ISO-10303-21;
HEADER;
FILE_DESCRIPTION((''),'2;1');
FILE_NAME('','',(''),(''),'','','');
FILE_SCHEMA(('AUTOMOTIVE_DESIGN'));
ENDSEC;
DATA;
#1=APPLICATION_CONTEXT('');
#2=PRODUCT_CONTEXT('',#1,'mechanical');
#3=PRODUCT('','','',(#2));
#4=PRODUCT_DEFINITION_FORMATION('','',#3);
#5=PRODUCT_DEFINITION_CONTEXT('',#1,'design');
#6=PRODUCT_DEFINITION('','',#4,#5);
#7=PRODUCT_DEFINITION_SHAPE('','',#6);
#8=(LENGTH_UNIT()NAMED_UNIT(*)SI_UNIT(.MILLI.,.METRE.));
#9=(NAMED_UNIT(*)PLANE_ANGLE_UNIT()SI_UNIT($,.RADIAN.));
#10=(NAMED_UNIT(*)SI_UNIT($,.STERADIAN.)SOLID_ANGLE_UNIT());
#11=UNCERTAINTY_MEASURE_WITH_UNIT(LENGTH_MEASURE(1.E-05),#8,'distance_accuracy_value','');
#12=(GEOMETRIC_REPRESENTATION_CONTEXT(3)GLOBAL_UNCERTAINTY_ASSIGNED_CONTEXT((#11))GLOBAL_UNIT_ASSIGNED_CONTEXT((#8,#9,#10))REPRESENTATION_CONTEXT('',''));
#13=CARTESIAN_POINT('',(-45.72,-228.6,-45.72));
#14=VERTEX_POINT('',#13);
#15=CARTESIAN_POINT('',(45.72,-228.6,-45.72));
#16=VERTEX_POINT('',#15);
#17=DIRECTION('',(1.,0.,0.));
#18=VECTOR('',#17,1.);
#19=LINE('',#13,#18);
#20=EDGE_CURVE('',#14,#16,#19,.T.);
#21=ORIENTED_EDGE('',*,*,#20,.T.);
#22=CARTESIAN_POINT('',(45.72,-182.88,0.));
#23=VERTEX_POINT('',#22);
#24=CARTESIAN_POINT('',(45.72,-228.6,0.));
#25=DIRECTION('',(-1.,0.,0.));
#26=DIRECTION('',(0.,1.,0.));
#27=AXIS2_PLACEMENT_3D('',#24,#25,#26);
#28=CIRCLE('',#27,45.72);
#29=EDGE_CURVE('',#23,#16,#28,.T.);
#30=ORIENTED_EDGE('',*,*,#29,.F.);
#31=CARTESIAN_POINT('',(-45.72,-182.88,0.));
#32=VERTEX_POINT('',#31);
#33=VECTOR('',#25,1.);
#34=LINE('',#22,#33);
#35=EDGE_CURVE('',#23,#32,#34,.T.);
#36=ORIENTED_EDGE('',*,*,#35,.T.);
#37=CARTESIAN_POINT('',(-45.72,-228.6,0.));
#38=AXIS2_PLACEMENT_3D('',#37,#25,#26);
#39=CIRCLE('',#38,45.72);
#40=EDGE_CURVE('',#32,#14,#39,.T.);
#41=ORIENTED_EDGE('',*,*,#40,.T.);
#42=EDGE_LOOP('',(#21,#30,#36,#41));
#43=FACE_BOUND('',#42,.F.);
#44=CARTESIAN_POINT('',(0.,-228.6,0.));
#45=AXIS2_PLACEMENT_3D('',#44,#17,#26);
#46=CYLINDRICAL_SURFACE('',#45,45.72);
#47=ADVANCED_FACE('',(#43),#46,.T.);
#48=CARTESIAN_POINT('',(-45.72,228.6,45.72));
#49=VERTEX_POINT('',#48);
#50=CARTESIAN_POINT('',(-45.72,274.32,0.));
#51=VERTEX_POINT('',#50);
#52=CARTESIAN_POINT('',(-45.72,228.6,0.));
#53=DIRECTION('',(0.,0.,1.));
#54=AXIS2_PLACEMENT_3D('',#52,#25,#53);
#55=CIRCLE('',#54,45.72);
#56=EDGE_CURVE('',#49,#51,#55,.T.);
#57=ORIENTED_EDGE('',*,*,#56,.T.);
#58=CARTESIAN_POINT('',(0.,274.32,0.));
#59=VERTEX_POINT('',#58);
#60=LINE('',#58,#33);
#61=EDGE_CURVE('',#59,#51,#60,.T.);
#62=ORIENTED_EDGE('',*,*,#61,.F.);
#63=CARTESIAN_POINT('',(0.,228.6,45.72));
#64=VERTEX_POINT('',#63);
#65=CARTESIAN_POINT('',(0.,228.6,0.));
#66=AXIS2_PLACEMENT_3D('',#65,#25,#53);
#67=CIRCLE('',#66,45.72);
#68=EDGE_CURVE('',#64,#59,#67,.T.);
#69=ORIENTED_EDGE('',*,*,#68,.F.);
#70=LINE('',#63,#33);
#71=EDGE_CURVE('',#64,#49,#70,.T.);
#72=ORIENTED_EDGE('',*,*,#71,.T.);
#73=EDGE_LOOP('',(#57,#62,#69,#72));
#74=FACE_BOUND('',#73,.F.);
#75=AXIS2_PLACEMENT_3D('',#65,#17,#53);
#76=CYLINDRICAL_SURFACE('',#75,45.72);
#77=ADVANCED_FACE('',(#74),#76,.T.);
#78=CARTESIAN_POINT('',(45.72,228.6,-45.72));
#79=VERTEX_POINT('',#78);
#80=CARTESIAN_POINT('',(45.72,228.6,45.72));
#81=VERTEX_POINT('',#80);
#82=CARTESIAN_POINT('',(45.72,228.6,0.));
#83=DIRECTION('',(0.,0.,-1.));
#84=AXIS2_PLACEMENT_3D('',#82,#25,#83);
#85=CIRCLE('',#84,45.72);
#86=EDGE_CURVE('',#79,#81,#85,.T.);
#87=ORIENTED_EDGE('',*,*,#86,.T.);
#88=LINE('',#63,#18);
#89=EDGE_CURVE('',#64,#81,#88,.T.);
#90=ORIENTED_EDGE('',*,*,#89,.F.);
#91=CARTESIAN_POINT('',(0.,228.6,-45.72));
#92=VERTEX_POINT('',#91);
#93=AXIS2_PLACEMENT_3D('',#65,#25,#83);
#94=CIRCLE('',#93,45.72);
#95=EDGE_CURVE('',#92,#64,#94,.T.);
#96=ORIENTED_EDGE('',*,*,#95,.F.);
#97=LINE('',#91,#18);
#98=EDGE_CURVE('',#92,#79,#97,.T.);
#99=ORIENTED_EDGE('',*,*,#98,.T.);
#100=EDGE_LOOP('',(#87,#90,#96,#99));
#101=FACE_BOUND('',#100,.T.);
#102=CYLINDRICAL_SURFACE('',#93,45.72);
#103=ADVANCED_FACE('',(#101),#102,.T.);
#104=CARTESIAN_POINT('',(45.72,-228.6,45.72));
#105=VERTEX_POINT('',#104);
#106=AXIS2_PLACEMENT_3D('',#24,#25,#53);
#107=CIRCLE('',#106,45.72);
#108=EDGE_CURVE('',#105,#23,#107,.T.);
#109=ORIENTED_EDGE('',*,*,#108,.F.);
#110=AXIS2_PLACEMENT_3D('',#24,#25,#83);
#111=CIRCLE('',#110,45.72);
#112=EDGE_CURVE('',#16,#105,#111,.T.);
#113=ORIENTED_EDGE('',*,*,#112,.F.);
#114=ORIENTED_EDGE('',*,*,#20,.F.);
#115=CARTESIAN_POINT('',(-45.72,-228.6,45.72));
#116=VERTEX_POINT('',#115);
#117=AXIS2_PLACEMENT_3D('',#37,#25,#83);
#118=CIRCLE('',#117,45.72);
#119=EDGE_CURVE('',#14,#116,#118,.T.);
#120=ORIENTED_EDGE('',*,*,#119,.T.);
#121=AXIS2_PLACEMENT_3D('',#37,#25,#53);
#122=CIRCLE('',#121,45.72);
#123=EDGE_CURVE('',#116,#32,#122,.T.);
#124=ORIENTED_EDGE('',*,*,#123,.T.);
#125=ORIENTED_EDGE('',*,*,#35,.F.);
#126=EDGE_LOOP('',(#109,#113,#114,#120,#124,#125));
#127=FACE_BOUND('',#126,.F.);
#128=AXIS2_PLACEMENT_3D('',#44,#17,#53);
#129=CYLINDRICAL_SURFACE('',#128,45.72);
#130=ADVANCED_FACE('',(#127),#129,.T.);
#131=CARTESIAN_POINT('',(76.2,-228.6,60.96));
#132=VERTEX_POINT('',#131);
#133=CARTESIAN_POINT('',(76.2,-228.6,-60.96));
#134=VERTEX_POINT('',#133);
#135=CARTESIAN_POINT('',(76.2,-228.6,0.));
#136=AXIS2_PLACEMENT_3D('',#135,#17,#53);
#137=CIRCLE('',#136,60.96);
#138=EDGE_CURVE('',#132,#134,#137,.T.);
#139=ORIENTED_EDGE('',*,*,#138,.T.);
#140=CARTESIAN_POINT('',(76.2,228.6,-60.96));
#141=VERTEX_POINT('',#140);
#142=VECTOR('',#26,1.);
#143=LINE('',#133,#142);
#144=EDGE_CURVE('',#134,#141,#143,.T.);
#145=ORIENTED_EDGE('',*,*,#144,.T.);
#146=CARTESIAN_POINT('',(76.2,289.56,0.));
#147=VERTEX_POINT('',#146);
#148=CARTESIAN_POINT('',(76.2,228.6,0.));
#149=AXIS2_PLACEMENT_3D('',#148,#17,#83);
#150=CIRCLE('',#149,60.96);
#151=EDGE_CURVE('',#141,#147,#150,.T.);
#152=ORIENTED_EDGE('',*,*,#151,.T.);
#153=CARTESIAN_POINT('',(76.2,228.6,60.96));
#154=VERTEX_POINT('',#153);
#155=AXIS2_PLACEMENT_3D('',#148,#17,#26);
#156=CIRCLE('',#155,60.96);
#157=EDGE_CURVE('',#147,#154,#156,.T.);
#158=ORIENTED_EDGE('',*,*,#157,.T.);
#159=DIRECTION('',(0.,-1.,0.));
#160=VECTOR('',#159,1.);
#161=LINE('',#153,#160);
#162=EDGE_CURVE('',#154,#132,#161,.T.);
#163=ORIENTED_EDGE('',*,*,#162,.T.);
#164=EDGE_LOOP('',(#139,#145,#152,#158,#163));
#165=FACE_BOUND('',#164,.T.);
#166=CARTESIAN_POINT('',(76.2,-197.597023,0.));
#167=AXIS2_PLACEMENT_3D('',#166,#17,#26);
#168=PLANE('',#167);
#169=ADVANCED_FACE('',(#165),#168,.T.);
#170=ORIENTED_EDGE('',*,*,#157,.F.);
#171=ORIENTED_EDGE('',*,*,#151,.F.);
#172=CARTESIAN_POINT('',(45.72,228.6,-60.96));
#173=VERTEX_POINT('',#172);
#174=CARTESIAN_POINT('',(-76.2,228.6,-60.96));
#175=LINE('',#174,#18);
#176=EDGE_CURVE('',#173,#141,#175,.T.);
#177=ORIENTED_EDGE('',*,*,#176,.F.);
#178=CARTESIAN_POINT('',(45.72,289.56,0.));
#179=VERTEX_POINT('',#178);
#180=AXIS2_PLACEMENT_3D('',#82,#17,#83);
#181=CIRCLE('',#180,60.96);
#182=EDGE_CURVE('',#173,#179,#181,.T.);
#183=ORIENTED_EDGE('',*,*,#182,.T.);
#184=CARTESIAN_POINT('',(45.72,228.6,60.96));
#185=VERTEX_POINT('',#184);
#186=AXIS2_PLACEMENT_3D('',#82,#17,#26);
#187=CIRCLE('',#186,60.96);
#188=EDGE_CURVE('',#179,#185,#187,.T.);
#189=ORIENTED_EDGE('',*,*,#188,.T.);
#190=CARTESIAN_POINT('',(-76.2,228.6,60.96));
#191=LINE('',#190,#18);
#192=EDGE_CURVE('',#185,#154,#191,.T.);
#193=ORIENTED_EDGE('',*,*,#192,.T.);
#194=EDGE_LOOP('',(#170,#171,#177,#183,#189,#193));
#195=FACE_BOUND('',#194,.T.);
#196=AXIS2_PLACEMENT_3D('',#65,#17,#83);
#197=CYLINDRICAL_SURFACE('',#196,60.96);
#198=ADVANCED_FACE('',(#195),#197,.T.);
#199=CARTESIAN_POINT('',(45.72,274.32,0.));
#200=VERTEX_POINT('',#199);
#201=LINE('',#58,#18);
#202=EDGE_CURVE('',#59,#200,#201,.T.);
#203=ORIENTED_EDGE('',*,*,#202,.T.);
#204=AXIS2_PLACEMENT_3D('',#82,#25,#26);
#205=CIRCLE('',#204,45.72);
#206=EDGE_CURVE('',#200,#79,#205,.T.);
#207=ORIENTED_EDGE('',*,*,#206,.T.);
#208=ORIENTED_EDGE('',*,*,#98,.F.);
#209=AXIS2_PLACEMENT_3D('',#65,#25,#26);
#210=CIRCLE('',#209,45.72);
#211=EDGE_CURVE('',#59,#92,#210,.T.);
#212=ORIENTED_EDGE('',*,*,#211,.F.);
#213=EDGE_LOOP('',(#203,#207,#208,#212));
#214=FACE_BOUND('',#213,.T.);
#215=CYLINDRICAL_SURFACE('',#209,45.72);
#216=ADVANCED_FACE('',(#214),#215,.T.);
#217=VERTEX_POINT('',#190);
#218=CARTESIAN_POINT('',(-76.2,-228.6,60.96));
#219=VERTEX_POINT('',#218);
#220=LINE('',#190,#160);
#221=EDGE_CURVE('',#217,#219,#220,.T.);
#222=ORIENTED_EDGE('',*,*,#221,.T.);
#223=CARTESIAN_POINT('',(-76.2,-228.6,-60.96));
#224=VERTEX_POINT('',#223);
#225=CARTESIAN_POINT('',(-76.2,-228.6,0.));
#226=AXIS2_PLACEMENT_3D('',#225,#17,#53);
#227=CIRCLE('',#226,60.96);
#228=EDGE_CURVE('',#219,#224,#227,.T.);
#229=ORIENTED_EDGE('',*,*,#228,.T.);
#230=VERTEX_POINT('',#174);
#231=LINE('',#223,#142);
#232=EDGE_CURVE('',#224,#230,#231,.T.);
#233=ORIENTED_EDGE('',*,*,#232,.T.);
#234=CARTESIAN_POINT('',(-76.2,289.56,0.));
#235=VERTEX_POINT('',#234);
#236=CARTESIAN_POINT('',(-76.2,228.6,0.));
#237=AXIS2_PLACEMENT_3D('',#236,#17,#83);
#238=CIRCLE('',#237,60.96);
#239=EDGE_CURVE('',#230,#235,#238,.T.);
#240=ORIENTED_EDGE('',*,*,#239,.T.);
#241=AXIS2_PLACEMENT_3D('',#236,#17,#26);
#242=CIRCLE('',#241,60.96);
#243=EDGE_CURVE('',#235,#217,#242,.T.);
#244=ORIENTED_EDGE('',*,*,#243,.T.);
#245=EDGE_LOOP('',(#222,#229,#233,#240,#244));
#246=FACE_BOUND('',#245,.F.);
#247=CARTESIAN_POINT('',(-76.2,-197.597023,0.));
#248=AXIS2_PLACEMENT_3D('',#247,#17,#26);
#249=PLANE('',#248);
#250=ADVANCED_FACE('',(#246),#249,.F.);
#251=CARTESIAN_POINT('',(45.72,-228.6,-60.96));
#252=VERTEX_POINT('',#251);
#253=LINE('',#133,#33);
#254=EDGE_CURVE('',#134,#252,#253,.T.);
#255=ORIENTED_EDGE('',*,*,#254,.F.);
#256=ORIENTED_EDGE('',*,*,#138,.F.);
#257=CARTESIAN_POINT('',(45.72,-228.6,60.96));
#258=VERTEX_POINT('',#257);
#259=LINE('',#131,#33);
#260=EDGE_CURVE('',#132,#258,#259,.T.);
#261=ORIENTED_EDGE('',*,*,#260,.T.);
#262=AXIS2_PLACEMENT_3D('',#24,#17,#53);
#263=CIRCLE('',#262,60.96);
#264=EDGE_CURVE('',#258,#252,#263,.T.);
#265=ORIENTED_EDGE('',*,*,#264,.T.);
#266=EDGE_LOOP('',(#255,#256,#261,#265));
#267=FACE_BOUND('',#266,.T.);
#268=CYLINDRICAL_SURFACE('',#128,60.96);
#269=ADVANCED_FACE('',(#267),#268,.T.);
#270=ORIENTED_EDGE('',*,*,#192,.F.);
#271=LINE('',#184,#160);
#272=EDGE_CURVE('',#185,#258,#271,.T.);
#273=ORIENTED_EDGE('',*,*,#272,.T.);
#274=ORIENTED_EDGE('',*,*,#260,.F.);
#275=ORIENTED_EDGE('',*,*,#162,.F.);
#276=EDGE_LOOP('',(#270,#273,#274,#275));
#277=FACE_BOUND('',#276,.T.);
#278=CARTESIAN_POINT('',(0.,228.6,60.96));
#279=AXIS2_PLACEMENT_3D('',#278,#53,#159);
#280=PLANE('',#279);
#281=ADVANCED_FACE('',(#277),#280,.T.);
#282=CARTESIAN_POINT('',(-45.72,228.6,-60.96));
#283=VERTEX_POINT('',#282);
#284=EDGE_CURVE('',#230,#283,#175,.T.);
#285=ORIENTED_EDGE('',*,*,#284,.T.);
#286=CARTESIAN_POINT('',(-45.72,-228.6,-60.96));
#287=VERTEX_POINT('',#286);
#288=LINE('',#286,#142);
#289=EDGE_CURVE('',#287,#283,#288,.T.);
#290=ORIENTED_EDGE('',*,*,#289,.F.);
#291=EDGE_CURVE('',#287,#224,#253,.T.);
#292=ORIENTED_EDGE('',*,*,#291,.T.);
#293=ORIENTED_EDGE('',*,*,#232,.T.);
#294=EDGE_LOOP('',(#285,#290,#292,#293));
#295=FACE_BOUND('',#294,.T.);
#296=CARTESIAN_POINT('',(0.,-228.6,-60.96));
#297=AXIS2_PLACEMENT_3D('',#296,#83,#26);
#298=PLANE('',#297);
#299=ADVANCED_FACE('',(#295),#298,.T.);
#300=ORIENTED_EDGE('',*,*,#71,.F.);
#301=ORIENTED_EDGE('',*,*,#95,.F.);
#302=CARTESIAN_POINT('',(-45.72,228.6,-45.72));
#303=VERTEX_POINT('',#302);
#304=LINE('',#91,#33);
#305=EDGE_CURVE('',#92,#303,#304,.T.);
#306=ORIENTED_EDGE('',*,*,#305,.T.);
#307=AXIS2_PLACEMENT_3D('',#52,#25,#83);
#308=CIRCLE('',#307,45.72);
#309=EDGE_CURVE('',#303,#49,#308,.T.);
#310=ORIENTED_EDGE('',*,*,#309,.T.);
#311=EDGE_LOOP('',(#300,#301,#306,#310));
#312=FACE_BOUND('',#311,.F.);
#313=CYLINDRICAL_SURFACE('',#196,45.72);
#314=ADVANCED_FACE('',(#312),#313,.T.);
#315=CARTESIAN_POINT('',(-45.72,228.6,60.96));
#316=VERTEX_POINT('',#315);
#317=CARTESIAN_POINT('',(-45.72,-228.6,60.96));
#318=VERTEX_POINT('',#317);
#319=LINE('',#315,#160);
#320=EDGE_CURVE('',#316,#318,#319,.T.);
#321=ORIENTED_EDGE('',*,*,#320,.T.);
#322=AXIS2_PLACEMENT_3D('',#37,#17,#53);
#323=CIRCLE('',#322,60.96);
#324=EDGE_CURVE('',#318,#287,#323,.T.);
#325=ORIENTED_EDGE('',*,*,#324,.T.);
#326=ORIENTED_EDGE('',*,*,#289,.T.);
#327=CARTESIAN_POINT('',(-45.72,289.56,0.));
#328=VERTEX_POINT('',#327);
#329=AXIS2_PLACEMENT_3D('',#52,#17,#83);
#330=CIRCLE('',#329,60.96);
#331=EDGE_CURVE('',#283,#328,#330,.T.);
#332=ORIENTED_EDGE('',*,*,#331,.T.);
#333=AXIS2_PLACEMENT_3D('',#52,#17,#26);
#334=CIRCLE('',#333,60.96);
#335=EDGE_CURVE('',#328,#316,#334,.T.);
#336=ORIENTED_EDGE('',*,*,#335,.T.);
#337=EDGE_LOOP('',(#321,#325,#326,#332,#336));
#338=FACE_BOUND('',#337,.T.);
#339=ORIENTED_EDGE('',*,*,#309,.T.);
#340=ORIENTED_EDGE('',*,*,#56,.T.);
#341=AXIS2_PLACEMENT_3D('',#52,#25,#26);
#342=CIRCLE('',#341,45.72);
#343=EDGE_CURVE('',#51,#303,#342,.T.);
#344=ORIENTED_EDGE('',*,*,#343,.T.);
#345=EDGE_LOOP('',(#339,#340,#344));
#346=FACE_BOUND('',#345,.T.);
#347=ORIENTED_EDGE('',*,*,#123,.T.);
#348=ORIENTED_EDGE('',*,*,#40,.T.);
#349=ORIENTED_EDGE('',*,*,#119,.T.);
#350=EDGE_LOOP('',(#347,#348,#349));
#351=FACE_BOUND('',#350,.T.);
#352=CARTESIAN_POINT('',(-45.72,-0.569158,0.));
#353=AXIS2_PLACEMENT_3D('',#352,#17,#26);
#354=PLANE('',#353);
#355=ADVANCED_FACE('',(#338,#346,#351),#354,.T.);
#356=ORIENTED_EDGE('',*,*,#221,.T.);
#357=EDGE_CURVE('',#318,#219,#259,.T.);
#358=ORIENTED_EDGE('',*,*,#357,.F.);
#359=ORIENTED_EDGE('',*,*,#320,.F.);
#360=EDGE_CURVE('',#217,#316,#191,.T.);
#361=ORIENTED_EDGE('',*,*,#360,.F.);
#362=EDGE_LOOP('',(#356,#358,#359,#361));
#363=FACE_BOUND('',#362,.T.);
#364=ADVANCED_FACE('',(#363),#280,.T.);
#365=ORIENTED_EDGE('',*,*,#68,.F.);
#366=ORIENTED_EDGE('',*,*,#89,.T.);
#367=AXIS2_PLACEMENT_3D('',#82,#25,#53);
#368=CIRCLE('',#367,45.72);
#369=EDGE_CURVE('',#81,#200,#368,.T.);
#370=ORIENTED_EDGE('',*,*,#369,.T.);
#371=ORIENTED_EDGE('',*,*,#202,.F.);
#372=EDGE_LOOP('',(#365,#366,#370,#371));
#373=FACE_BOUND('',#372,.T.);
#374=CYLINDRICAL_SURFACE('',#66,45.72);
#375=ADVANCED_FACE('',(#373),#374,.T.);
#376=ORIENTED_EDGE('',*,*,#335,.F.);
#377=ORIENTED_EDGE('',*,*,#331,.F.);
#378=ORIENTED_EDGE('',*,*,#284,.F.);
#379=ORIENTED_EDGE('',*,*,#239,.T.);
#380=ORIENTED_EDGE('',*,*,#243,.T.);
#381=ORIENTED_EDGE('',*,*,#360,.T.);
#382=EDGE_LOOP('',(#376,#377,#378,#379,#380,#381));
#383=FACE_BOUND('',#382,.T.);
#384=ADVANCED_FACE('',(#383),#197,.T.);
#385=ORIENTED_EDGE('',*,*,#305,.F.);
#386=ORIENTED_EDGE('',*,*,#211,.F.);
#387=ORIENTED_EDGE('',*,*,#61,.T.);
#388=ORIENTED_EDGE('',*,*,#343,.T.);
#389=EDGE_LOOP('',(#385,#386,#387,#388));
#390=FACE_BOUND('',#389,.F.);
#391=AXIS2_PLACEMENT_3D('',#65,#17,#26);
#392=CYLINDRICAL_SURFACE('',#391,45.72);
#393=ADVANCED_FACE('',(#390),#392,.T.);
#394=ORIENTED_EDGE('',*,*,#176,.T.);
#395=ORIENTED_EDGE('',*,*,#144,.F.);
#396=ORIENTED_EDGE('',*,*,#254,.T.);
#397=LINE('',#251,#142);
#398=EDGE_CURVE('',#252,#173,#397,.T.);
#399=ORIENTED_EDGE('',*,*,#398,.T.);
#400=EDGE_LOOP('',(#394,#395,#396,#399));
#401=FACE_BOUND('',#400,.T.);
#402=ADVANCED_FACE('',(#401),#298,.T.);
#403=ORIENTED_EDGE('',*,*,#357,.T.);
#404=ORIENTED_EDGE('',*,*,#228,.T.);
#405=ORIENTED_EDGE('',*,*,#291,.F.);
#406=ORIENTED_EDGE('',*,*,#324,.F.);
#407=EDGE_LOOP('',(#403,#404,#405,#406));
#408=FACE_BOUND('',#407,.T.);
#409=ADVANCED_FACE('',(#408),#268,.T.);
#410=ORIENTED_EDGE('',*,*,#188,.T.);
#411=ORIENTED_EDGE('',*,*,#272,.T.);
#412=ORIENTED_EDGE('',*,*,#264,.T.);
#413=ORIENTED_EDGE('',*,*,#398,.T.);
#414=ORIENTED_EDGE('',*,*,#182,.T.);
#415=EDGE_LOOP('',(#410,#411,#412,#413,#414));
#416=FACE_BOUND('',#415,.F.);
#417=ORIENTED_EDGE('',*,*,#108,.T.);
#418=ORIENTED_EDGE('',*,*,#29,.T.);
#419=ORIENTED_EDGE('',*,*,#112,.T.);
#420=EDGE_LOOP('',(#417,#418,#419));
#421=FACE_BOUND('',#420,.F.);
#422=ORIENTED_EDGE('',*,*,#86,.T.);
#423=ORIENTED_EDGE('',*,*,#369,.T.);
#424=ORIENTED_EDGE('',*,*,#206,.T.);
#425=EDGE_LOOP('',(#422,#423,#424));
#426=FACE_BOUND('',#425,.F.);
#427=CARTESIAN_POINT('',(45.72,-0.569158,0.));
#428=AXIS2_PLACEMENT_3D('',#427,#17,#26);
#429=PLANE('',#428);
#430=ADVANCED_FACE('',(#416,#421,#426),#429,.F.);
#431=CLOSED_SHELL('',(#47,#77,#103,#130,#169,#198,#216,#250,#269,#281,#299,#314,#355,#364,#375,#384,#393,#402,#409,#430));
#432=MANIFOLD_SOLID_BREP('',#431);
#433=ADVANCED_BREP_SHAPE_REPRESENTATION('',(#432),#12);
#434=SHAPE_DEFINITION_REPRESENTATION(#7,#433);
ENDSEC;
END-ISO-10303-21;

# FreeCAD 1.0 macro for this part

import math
import FreeCAD as App
import Part
import Sketcher

V = App.Vector
Q = App.Units.Quantity

doc = App.newDocument("Part")
body = doc.addObject("PartDesign::Body", "Body")

# Sketch on YZ plane
sketch1 = doc.addObject("Sketcher::SketchObject", "Sketch")
body.addObject(sketch1)
sketch1.AttachmentSupport = (doc.YZ_Plane, [""])
sketch1.MapMode = "FlatFace"
sketch1.addGeometry(Part.LineSegment(V(-229, -61, 0), V(229, -61, 0)), False)
sketch1.addGeometry(Part.ArcOfCircle(Part.Circle(V(229, 0, 0), V(0, 0, 1), 61), math.radians(-90), math.radians(0)), False)
sketch1.addGeometry(Part.ArcOfCircle(Part.Circle(V(229, 0, 0), V(0, 0, 1), 61), math.radians(0), math.radians(90)), False)
sketch1.addGeometry(Part.LineSegment(V(229, 61, 0), V(-229, 61, 0)), False)
sketch1.addGeometry(Part.ArcOfCircle(Part.Circle(V(-229, 0, 0), V(0, 0, 1), 61), math.radians(90), math.radians(270)), False)
sketch1.addConstraint(Sketcher.Constraint("Tangent", 0, 2, 1, 1))
sketch1.addConstraint(Sketcher.Constraint("Tangent", 1, 2, 2, 1))
sketch1.addConstraint(Sketcher.Constraint("Tangent", 2, 2, 3, 1))
sketch1.addConstraint(Sketcher.Constraint("Tangent", 3, 2, 4, 1))
sketch1.addConstraint(Sketcher.Constraint("Tangent", 4, 2, 0, 1))
sketch1.addConstraint(Sketcher.Constraint("Horizontal", 0))
sketch1.addConstraint(Sketcher.Constraint("Horizontal", 3))
sketch1.addConstraint(Sketcher.Constraint("Equal", 1, 2))
sketch1.addConstraint(Sketcher.Constraint("Symmetric", 1, 3, 4, 3, -1, 1))
sketch1.addConstraint(Sketcher.Constraint("PointOnObject", 1, 2, -1))
sketch1.addConstraint(Sketcher.Constraint("Radius", 1, Q("2.4 in")))
sketch1.addConstraint(Sketcher.Constraint("DistanceX", 0, 1, 0, 2, Q("18 in")))
pad1 = doc.addObject("PartDesign::Pad", "Pad")
body.addObject(pad1)
pad1.Profile = sketch1
pad1.Length = Q("6 in")
pad1.Midplane = True

# Sketch on YZ plane
sketch2 = doc.addObject("Sketcher::SketchObject", "Sketch001")
body.addObject(sketch2)
sketch2.AttachmentSupport = (doc.YZ_Plane, [""])
sketch2.MapMode = "FlatFace"
sketch2.addGeometry(Part.LineSegment(V(229, 61, 0), V(-229, 61, 0)), False)
sketch2.addGeometry(Part.ArcOfCircle(Part.Circle(V(-229, 0, 0), V(0, 0, 1), 61), math.radians(90), math.radians(270)), False)
sketch2.addGeometry(Part.LineSegment(V(-229, -61, 0), V(229, -61, 0)), False)
sketch2.addGeometry(Part.ArcOfCircle(Part.Circle(V(229, 0, 0), V(0, 0, 1), 61), math.radians(-90), math.radians(0)), False)
sketch2.addGeometry(Part.ArcOfCircle(Part.Circle(V(229, 0, 0), V(0, 0, 1), 61), math.radians(0), math.radians(90)), False)
sketch2.addGeometry(Part.ArcOfCircle(Part.Circle(V(-229, 0, 0), V(0, 0, 1), 46), math.radians(0), math.radians(90)), False)
sketch2.addGeometry(Part.ArcOfCircle(Part.Circle(V(-229, 0, 0), V(0, 0, 1), 46), math.radians(-90), math.radians(0)), False)
sketch2.addGeometry(Part.ArcOfCircle(Part.Circle(V(-229, 0, 0), V(0, 0, 1), 46), math.radians(90), math.radians(270)), False)
sketch2.addGeometry(Part.ArcOfCircle(Part.Circle(V(229, 0, 0), V(0, 0, 1), 46), math.radians(90), math.radians(270)), False)
sketch2.addGeometry(Part.ArcOfCircle(Part.Circle(V(229, 0, 0), V(0, 0, 1), 46), math.radians(0), math.radians(90)), False)
sketch2.addGeometry(Part.ArcOfCircle(Part.Circle(V(229, 0, 0), V(0, 0, 1), 46), math.radians(-90), math.radians(0)), False)
sketch2.addConstraint(Sketcher.Constraint("Tangent", 0, 2, 1, 1))
sketch2.addConstraint(Sketcher.Constraint("Tangent", 1, 2, 2, 1))
sketch2.addConstraint(Sketcher.Constraint("Tangent", 2, 2, 3, 1))
sketch2.addConstraint(Sketcher.Constraint("Tangent", 3, 2, 4, 1))
sketch2.addConstraint(Sketcher.Constraint("Tangent", 4, 2, 0, 1))
sketch2.addConstraint(Sketcher.Constraint("Tangent", 5, 1, 6, 2))
sketch2.addConstraint(Sketcher.Constraint("Tangent", 6, 1, 7, 2))
sketch2.addConstraint(Sketcher.Constraint("Tangent", 7, 1, 5, 2))
sketch2.addConstraint(Sketcher.Constraint("Tangent", 8, 1, 9, 2))
sketch2.addConstraint(Sketcher.Constraint("Tangent", 9, 1, 10, 2))
sketch2.addConstraint(Sketcher.Constraint("Tangent", 10, 1, 8, 2))
sketch2.addConstraint(Sketcher.Constraint("Horizontal", 0))
sketch2.addConstraint(Sketcher.Constraint("Horizontal", 2))
sketch2.addConstraint(Sketcher.Constraint("Coincident", 5, 3, 1, 3))
sketch2.addConstraint(Sketcher.Constraint("Coincident", 8, 3, 3, 3))
sketch2.addConstraint(Sketcher.Constraint("Equal", 1, 3))
sketch2.addConstraint(Sketcher.Constraint("Equal", 7, 8))
sketch2.addConstraint(Sketcher.Constraint("Symmetric", 1, 3, 3, 3, -1, 1))
sketch2.addConstraint(Sketcher.Constraint("PointOnObject", 3, 2, -1))
sketch2.addConstraint(Sketcher.Constraint("PointOnObject", 5, 1, -1))
sketch2.addConstraint(Sketcher.Constraint("PointOnObject", 9, 1, -1))
sketch2.addConstraint(Sketcher.Constraint("Vertical", 1, 2, 6, 1))
sketch2.addConstraint(Sketcher.Constraint("Vertical", 6, 1, 7, 1))
sketch2.addConstraint(Sketcher.Constraint("Vertical", 4, 2, 8, 1))
sketch2.addConstraint(Sketcher.Constraint("Vertical", 8, 1, 10, 1))
sketch2.addConstraint(Sketcher.Constraint("Radius", 1, Q("2.4 in")))
sketch2.addConstraint(Sketcher.Constraint("Radius", 5, Q("1.8 in")))
sketch2.addConstraint(Sketcher.Constraint("DistanceX", 0, 2, 0, 1, Q("18 in")))
pocket1 = doc.addObject("PartDesign::Pocket", "Pocket")
body.addObject(pocket1)
pocket1.Profile = sketch2
pocket1.Length = Q("3.6 in")
pocket1.Midplane = True

doc.recompute()
